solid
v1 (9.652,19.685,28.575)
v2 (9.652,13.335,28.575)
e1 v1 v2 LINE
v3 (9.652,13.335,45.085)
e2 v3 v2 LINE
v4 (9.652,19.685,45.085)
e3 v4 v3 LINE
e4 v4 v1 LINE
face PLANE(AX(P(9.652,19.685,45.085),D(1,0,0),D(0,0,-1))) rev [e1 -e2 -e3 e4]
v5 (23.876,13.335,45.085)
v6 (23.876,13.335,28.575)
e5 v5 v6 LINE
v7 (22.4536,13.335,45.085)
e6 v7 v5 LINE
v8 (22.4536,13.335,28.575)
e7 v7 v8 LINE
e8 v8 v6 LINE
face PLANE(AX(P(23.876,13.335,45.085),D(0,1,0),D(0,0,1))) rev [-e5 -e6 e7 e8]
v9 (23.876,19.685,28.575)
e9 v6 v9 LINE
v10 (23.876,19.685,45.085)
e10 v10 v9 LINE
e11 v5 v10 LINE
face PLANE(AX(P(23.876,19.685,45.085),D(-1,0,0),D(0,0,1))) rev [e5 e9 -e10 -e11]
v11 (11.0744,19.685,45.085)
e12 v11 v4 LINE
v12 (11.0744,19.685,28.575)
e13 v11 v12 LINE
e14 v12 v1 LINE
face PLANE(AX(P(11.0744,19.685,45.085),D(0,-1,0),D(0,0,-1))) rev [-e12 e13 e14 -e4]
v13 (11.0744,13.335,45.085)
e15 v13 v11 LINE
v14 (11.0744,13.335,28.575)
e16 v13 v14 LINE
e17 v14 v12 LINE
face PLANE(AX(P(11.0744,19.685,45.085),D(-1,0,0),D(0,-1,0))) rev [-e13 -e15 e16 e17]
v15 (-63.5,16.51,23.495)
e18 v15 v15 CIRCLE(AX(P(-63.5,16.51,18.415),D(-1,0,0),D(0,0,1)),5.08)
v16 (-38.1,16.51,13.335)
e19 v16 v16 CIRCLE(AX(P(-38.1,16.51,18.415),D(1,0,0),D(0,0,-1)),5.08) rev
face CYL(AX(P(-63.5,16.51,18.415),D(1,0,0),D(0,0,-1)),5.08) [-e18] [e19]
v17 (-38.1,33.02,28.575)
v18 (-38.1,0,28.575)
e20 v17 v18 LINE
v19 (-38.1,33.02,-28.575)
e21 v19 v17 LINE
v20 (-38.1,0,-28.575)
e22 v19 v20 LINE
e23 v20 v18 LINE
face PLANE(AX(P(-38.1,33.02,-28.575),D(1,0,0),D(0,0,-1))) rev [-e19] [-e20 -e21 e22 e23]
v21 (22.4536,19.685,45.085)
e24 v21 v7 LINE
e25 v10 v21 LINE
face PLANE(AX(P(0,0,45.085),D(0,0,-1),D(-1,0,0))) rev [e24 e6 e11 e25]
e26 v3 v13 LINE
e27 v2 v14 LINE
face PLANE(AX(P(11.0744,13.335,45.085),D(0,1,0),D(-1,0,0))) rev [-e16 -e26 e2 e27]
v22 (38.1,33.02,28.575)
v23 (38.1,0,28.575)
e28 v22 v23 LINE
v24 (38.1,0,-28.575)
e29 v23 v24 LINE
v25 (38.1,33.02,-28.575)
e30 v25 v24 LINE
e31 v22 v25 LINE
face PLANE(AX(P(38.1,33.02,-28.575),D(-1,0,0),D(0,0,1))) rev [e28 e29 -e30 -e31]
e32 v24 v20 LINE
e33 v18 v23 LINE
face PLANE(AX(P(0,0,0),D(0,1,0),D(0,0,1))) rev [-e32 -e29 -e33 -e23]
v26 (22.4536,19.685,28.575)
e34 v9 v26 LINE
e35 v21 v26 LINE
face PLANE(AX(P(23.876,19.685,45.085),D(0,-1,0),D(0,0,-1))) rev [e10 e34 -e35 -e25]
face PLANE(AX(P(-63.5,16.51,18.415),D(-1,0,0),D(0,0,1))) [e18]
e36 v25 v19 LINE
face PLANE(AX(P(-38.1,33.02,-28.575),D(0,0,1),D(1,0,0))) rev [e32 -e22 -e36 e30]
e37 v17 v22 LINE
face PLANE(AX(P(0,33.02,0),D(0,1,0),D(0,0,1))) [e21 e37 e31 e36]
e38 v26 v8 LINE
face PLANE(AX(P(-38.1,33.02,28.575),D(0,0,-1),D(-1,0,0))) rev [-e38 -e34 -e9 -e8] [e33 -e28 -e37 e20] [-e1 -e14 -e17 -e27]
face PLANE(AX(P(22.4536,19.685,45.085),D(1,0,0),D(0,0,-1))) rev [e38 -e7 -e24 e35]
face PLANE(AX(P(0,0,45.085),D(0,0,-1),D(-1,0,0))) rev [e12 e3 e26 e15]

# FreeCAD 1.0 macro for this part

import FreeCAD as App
import Part
import Sketcher

V = App.Vector
Q = App.Units.Quantity

doc = App.newDocument("Part")
body = doc.addObject("PartDesign::Body", "Body")

# Sketch on XZ plane
sketch1 = body.newObject("Sketcher::SketchObject", "Sketch")
sketch1.AttachmentSupport = (doc.getObject("XZ_Plane"), [""])
sketch1.MapMode = "FlatFace"
sketch1.addGeometry(Part.LineSegment(V(-38, -29, 0), V(-38, 29, 0)), False)
sketch1.addGeometry(Part.LineSegment(V(-38, 29, 0), V(38, 29, 0)), False)
sketch1.addGeometry(Part.LineSegment(V(38, 29, 0), V(38, -29, 0)), False)
sketch1.addGeometry(Part.LineSegment(V(38, -29, 0), V(-38, -29, 0)), False)
sketch1.addConstraint(Sketcher.Constraint("Coincident", 0, 2, 1, 1))
sketch1.addConstraint(Sketcher.Constraint("Coincident", 1, 2, 2, 1))
sketch1.addConstraint(Sketcher.Constraint("Coincident", 2, 2, 3, 1))
sketch1.addConstraint(Sketcher.Constraint("Coincident", 3, 2, 0, 1))
sketch1.addConstraint(Sketcher.Constraint("Vertical", 0))
sketch1.addConstraint(Sketcher.Constraint("Horizontal", 1))
sketch1.addConstraint(Sketcher.Constraint("Vertical", 2))
sketch1.addConstraint(Sketcher.Constraint("Horizontal", 3))
sketch1.addConstraint(Sketcher.Constraint("Symmetric", 0, 2, 2, 2, -1, 1))
sketch1.addConstraint(Sketcher.Constraint("DistanceX", 1, 1, 1, 2, Q("3 in")))
sketch1.addConstraint(Sketcher.Constraint("DistanceY", 0, 1, 0, 2, Q("2.25 in")))
pad1 = body.newObject("PartDesign::Pad", "Pad")
pad1.Profile = sketch1
pad1.Length = Q("1.3 in")
pad1.Reversed = True

# Sketch on YZ plane
sketch2 = body.newObject("Sketcher::SketchObject", "Sketch001")
sketch2.AttachmentSupport = (doc.getObject("YZ_Plane"), [""])
sketch2.MapMode = "FlatFace"
sketch2.AttachmentOffset = App.Placement(V(0, 0, -1.5 * 25.4), App.Rotation())
sketch2.addGeometry(Part.Circle(V(17, 18, 0), V(0, 0, 1), 5), False)
sketch2.addConstraint(Sketcher.Constraint("Diameter", 0, Q("0.4 in")))
sketch2.addConstraint(Sketcher.Constraint("DistanceX", -1, 1, 0, 3, Q("0.65 in")))
sketch2.addConstraint(Sketcher.Constraint("DistanceY", -1, 1, 0, 3, Q("0.725 in")))
pad2 = body.newObject("PartDesign::Pad", "Pad001")
pad2.Profile = sketch2
pad2.Length = Q("1 in")
pad2.Reversed = True

# Sketch on XY plane
sketch3 = body.newObject("Sketcher::SketchObject", "Sketch002")
sketch3.AttachmentSupport = (doc.getObject("XY_Plane"), [""])
sketch3.MapMode = "FlatFace"
sketch3.AttachmentOffset = App.Placement(V(0, 0, 1.125 * 25.4), App.Rotation())
sketch3.addGeometry(Part.LineSegment(V(22.5, 19.7, 0), V(22.5, 13.3, 0)), False)
sketch3.addGeometry(Part.LineSegment(V(22.5, 13.3, 0), V(23.9, 13.3, 0)), False)
sketch3.addGeometry(Part.LineSegment(V(23.9, 13.3, 0), V(23.9, 19.7, 0)), False)
sketch3.addGeometry(Part.LineSegment(V(23.9, 19.7, 0), V(22.5, 19.7, 0)), False)
sketch3.addGeometry(Part.LineSegment(V(9.7, 19.7, 0), V(9.7, 13.3, 0)), False)
sketch3.addGeometry(Part.LineSegment(V(9.7, 13.3, 0), V(11.1, 13.3, 0)), False)
sketch3.addGeometry(Part.LineSegment(V(11.1, 13.3, 0), V(11.1, 19.7, 0)), False)
sketch3.addGeometry(Part.LineSegment(V(11.1, 19.7, 0), V(9.7, 19.7, 0)), False)
sketch3.addConstraint(Sketcher.Constraint("Coincident", 0, 2, 1, 1))
sketch3.addConstraint(Sketcher.Constraint("Coincident", 1, 2, 2, 1))
sketch3.addConstraint(Sketcher.Constraint("Coincident", 2, 2, 3, 1))
sketch3.addConstraint(Sketcher.Constraint("Coincident", 3, 2, 0, 1))
sketch3.addConstraint(Sketcher.Constraint("Coincident", 4, 2, 5, 1))
sketch3.addConstraint(Sketcher.Constraint("Coincident", 5, 2, 6, 1))
sketch3.addConstraint(Sketcher.Constraint("Coincident", 6, 2, 7, 1))
sketch3.addConstraint(Sketcher.Constraint("Coincident", 7, 2, 4, 1))
sketch3.addConstraint(Sketcher.Constraint("Vertical", 0))
sketch3.addConstraint(Sketcher.Constraint("Horizontal", 1))
sketch3.addConstraint(Sketcher.Constraint("Vertical", 2))
sketch3.addConstraint(Sketcher.Constraint("Horizontal", 3))
sketch3.addConstraint(Sketcher.Constraint("Vertical", 4))
sketch3.addConstraint(Sketcher.Constraint("Horizontal", 5))
sketch3.addConstraint(Sketcher.Constraint("Vertical", 6))
sketch3.addConstraint(Sketcher.Constraint("Horizontal", 7))
sketch3.addConstraint(Sketcher.Constraint("Horizontal", 1, 2, 4, 2))
sketch3.addConstraint(Sketcher.Constraint("Horizontal", 3, 2, 6, 2))
sketch3.addConstraint(Sketcher.Constraint("Equal", 3, 5))
sketch3.addConstraint(Sketcher.Constraint("DistanceY", 0, 2, 0, 1, Q("0.25 in")))
sketch3.addConstraint(Sketcher.Constraint("DistanceX", 1, 1, 1, 2, Q("0.056 in")))
sketch3.addConstraint(Sketcher.Constraint("DistanceX", -1, 1, 1, 2, Q("0.94 in")))
sketch3.addConstraint(Sketcher.Constraint("DistanceX", -1, 1, 4, 2, Q("0.38 in")))
sketch3.addConstraint(Sketcher.Constraint("DistanceY", -1, 1, 0, 2, Q("0.525 in")))
pad3 = body.newObject("PartDesign::Pad", "Pad002")
pad3.Profile = sketch3
pad3.Length = Q("0.65 in")

doc.recompute()
